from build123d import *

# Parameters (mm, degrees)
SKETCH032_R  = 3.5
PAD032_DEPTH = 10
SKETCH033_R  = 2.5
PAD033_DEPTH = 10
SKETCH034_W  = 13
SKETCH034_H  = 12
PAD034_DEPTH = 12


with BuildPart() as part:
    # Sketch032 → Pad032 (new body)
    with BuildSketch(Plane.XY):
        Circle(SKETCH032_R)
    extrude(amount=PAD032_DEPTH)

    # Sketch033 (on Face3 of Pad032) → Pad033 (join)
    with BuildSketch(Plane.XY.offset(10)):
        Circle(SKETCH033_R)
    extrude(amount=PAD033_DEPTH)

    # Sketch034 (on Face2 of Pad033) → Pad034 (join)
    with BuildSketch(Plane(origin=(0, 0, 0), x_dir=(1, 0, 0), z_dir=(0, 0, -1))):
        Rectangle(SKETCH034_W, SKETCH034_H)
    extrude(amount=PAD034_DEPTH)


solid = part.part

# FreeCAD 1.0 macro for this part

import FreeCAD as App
import Part
import Sketcher
from FreeCAD import Vector
Q = App.Units.Quantity

doc = App.newDocument("Part")
body = doc.addObject("PartDesign::Body", "Body")

sketch1 = doc.addObject("Sketcher::SketchObject", "Sketch")
body.addObject(sketch1)
sketch1.AttachmentSupport = (doc.XY_Plane, [""])
sketch1.MapMode = "FlatFace"
sketch1.addGeometry(Part.Circle(Vector(0, 0, 0), Vector(0, 0, 1), 3.5), False)
sketch1.addConstraint([
    Sketcher.Constraint("Coincident", 0, 3, -1, 1),
    Sketcher.Constraint("Diameter", 0, Q("7 mm")),
])
pad1 = doc.addObject("PartDesign::Pad", "Pad")
body.addObject(pad1)
pad1.Profile = sketch1
pad1.Length = 10

sketch2 = doc.addObject("Sketcher::SketchObject", "Sketch001")
body.addObject(sketch2)
sketch2.AttachmentSupport = (doc.XY_Plane, [""])
sketch2.MapMode = "FlatFace"
sketch2.AttachmentOffset = App.Placement(Vector(0, 0, 10), App.Rotation())
sketch2.addGeometry(Part.Circle(Vector(0, 0, 0), Vector(0, 0, 1), 2.5), False)
sketch2.addConstraint([
    Sketcher.Constraint("Coincident", 0, 3, -1, 1),
    Sketcher.Constraint("Diameter", 0, Q("5 mm")),
])
pad2 = doc.addObject("PartDesign::Pad", "Pad001")
body.addObject(pad2)
pad2.Profile = sketch2
pad2.Length = 10

sketch3 = doc.addObject("Sketcher::SketchObject", "Sketch002")
body.addObject(sketch3)
sketch3.AttachmentSupport = (doc.XY_Plane, [""])
sketch3.MapMode = "FlatFace"
sketch3.addGeometry([
    Part.LineSegment(Vector(-6, -6, 0), Vector(-6, 6, 0)),
    Part.LineSegment(Vector(-6, 6, 0), Vector(6, 6, 0)),
    Part.LineSegment(Vector(6, 6, 0), Vector(6, -6, 0)),
    Part.LineSegment(Vector(6, -6, 0), Vector(-6, -6, 0)),
], False)
sketch3.addConstraint([
    Sketcher.Constraint("Coincident", 0, 2, 1, 1),
    Sketcher.Constraint("Coincident", 1, 2, 2, 1),
    Sketcher.Constraint("Coincident", 2, 2, 3, 1),
    Sketcher.Constraint("Coincident", 3, 2, 0, 1),
    Sketcher.Constraint("Vertical", 0),
    Sketcher.Constraint("Horizontal", 1),
    Sketcher.Constraint("Vertical", 2),
    Sketcher.Constraint("Horizontal", 3),
    Sketcher.Constraint("Symmetric", 0, 2, 2, 2, -1, 1),
    Sketcher.Constraint("DistanceX", 1, 1, 1, 2, Q("13 mm")),
    Sketcher.Constraint("DistanceY", 0, 1, 0, 2, Q("12 mm")),
])
pad3 = doc.addObject("PartDesign::Pad", "Pad002")
body.addObject(pad3)
pad3.Profile = sketch3
pad3.Length = 12
pad3.Reversed = True

doc.recompute()
